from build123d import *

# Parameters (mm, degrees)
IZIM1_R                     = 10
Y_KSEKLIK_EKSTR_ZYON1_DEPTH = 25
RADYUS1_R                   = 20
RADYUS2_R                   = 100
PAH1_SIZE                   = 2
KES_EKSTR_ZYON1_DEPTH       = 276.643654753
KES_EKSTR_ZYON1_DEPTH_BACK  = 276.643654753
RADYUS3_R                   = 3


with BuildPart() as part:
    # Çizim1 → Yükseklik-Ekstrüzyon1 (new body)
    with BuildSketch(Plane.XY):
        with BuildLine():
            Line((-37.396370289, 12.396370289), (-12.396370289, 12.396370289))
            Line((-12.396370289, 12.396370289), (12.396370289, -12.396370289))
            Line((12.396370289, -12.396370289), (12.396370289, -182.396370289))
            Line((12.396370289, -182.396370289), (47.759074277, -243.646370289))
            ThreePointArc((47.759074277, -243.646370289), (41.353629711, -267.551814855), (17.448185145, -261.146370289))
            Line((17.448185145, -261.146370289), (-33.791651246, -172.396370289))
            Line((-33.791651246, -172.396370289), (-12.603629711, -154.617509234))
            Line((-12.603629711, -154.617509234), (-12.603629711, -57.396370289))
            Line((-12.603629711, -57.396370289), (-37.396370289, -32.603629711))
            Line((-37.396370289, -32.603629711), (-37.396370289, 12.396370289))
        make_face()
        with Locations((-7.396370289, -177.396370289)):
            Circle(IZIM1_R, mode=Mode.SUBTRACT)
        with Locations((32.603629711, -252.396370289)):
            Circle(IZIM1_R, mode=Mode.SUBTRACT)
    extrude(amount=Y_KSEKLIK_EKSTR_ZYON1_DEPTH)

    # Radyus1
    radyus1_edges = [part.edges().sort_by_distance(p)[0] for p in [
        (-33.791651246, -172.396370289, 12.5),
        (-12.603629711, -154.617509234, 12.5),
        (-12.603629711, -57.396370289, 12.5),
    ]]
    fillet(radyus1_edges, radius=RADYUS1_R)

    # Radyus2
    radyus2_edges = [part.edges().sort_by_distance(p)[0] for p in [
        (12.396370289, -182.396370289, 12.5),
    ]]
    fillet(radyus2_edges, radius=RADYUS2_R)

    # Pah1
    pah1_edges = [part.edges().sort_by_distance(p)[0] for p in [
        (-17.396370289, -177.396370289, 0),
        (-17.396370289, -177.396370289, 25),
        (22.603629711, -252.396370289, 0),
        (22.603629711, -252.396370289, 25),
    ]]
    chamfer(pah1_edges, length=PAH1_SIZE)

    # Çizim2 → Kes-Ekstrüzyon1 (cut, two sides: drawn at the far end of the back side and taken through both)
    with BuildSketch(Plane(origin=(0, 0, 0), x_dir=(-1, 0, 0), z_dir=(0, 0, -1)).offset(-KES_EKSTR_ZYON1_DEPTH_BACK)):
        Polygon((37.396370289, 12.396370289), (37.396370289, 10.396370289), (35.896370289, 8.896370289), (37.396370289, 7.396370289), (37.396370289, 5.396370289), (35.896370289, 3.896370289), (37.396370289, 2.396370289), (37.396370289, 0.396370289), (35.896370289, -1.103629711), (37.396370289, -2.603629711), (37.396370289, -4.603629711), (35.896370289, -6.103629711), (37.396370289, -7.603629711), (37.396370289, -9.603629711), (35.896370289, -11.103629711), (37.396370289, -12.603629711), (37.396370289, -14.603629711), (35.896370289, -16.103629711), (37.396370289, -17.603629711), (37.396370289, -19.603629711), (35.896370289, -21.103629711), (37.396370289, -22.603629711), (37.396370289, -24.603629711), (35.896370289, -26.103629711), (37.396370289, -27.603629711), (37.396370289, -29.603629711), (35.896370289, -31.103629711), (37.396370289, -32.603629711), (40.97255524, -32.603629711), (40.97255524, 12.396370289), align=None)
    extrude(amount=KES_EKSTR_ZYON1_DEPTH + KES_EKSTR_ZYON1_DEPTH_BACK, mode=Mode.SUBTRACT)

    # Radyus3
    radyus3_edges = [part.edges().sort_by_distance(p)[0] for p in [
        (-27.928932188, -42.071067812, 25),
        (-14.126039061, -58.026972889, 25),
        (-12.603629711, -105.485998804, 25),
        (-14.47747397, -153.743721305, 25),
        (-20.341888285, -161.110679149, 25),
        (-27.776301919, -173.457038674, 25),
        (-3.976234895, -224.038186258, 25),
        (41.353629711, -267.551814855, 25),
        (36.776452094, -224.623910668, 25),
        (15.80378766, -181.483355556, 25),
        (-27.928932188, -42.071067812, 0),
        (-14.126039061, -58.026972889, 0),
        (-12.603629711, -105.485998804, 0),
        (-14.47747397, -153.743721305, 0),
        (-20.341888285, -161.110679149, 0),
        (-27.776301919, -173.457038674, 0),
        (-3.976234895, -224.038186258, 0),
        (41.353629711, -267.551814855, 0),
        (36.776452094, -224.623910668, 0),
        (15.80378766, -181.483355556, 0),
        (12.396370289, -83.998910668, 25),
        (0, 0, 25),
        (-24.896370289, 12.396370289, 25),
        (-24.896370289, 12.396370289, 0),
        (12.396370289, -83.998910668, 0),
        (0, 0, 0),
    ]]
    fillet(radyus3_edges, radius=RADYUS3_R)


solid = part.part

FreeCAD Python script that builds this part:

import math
import FreeCAD as App
import Part
import Sketcher
Q = App.Units.Quantity


def edges_at(feature, points):
    """Names of the edges that pass closest to the given points."""
    edges = feature.Shape.Edges
    near = lambda p: min(range(len(edges)), key=lambda i: edges[i].distToShape(Part.Vertex(*p))[0])
    return sorted({f"Edge{near(p) + 1}" for p in points})


def add_polygon(sketch, points):
    """Adds a closed chain of lines whose ends are joined by coincident constraints."""
    first, n = sketch.GeometryCount, len(points)
    for a, b in zip(points, points[1:] + points[:1]):
        sketch.addGeometry(Part.LineSegment(App.Vector(*a, 0), App.Vector(*b, 0)), False)
    for i in range(n):
        sketch.addConstraint(Sketcher.Constraint("Coincident", first + i, 2, first + (i + 1) % n, 1))

doc = App.newDocument("Part")
body = doc.addObject("PartDesign::Body", "Body")

sketch1 = body.newObject("Sketcher::SketchObject", "Sketch")
sketch1.AttachmentSupport = (doc.getObject("XY_Plane"), [""])
sketch1.MapMode = "FlatFace"
sketch1.addGeometry([
    Part.LineSegment(App.Vector(-12, 12, 0), App.Vector(-37, 12, 0)),
    Part.LineSegment(App.Vector(-37, 12, 0), App.Vector(-37, -33, 0)),
    Part.LineSegment(App.Vector(-37, -33, 0), App.Vector(-13, -57, 0)),
    Part.LineSegment(App.Vector(-13, -57, 0), App.Vector(-13, -155, 0)),
    Part.LineSegment(App.Vector(-13, -155, 0), App.Vector(-34, -172, 0)),
    Part.LineSegment(App.Vector(-34, -172, 0), App.Vector(17, -261, 0)),
    Part.ArcOfCircle(Part.Circle(App.Vector(33, -252, 0), App.Vector(0, 0, 1), 18), math.radians(-150), math.radians(30)),
    Part.LineSegment(App.Vector(48, -244, 0), App.Vector(12, -182, 0)),
    Part.LineSegment(App.Vector(12, -182, 0), App.Vector(12, -12, 0)),
    Part.LineSegment(App.Vector(12, -12, 0), App.Vector(-12, 12, 0)),
    Part.Circle(App.Vector(33, -252, 0), App.Vector(0, 0, 1), 10),
    Part.Circle(App.Vector(-7, -177, 0), App.Vector(0, 0, 1), 10),
], False)
sketch1.addConstraint([
    Sketcher.Constraint("Coincident", 0, 2, 1, 1),
    Sketcher.Constraint("Coincident", 1, 2, 2, 1),
    Sketcher.Constraint("Coincident", 2, 2, 3, 1),
    Sketcher.Constraint("Coincident", 3, 2, 4, 1),
    Sketcher.Constraint("Coincident", 4, 2, 5, 1),
    Sketcher.Constraint("Tangent", 5, 2, 6, 1),
    Sketcher.Constraint("Tangent", 6, 2, 7, 1),
    Sketcher.Constraint("Coincident", 7, 2, 8, 1),
    Sketcher.Constraint("Coincident", 8, 2, 9, 1),
    Sketcher.Constraint("Coincident", 9, 2, 0, 1),
    Sketcher.Constraint("Horizontal", 0),
    Sketcher.Constraint("Vertical", 1),
    Sketcher.Constraint("Vertical", 3),
    Sketcher.Constraint("Vertical", 8),
    Sketcher.Constraint("Coincident", 10, 3, 6, 3),
    Sketcher.Constraint("Equal", 10, 11),
    Sketcher.Constraint("Symmetric", 8, 2, 9, 2, -1, 1),
    Sketcher.Constraint("Parallel", 5, 7),
    Sketcher.Constraint("Parallel", 2, 9),
    Sketcher.Constraint("Equal", 2, 9),
    Sketcher.Constraint("Diameter", 10, 20.0),
    Sketcher.Constraint("Radius", 6, 17.5),
    Sketcher.Constraint("DistanceX", 0, 2, 0, 1, 25.0),
    Sketcher.Constraint("DistanceY", 1, 2, 1, 1, 45.0),
    Sketcher.Constraint("DistanceY", 8, 1, 8, 2, 170.0),
    Sketcher.Constraint("Angle", 2, Q("-45 deg")),
    Sketcher.Constraint("Angle", 4, Q("-140 deg")),
    Sketcher.Constraint("Angle", 5, Q("-60 deg")),
    Sketcher.Constraint("DistanceX", 11, 3, 6, 3, 40.0),
    Sketcher.Constraint("DistanceY", 6, 3, 11, 3, 75.0),
    Sketcher.Constraint("DistanceX", 0, 2, 11, 3, 30.0),
    Sketcher.Constraint("DistanceY", 11, 3, 2, 2, 120.0),
    Sketcher.Constraint("DistanceY", 11, 3, 4, 2, 5.0),
])
pad1 = body.newObject("PartDesign::Pad", "Pad")
pad1.Profile = sketch1
pad1.Length = 25
doc.recompute()

fillet = body.newObject("PartDesign::Fillet", "Fillet")
fillet.Base = (pad1, edges_at(pad1, [(-33.792, -172.396, 12.5), (-12.604, -154.618, 12.5), (-12.604, -57.396, 12.5)]))
fillet.Radius = 20
doc.recompute()

fillet2 = body.newObject("PartDesign::Fillet", "Fillet001")
fillet2.Base = (fillet, edges_at(fillet, [(12.396, -182.396, 12.5)]))
fillet2.Radius = 100
doc.recompute()

chamfer = body.newObject("PartDesign::Chamfer", "Chamfer")
chamfer.Base = (fillet2, edges_at(fillet2, [
    (-17.396, -177.396, 0),
    (-17.396, -177.396, 25),
    (22.604, -252.396, 0),
    (22.604, -252.396, 25),
]))
chamfer.Size = 2

sketch2 = body.newObject("Sketcher::SketchObject", "Sketch001")
sketch2.AttachmentSupport = (doc.getObject("XY_Plane"), [""])
sketch2.MapMode = "FlatFace"
add_polygon(sketch2, [(-37.4, 12.4), (-37.4, 10.4), (-35.9, 8.9), (-37.4, 7.4), (-37.4, 5.4), (-35.9, 3.9), (-37.4, 2.4), (-37.4, 0.4), (-35.9, -1.1), (-37.4, -2.6), (-37.4, -4.6), (-35.9, -6.1), (-37.4, -7.6), (-37.4, -9.6), (-35.9, -11.1), (-37.4, -12.6), (-37.4, -14.6), (-35.9, -16.1), (-37.4, -17.6), (-37.4, -19.6), (-35.9, -21.1), (-37.4, -22.6), (-37.4, -24.6), (-35.9, -26.1), (-37.4, -27.6), (-37.4, -29.6), (-35.9, -31.1), (-37.4, -32.6), (-41, -32.6), (-41, 12.4)])
sketch2.addConstraint([
    Sketcher.Constraint("Vertical", 0),
    Sketcher.Constraint("Vertical", 3),
    Sketcher.Constraint("Vertical", 6),
    Sketcher.Constraint("Vertical", 9),
    Sketcher.Constraint("Vertical", 12),
    Sketcher.Constraint("Vertical", 15),
    Sketcher.Constraint("Vertical", 18),
    Sketcher.Constraint("Vertical", 21),
    Sketcher.Constraint("Vertical", 24),
    Sketcher.Constraint("Horizontal", 27),
    Sketcher.Constraint("Vertical", 28),
    Sketcher.Constraint("Horizontal", 29),
    Sketcher.Constraint("Perpendicular", 1, 2),
    Sketcher.Constraint("Perpendicular", 2, 4),
    Sketcher.Constraint("Perpendicular", 4, 5),
    Sketcher.Constraint("Perpendicular", 5, 7),
    Sketcher.Constraint("Perpendicular", 7, 8),
    Sketcher.Constraint("Perpendicular", 8, 10),
    Sketcher.Constraint("Perpendicular", 10, 11),
    Sketcher.Constraint("Perpendicular", 11, 13),
    Sketcher.Constraint("Perpendicular", 13, 14),
    Sketcher.Constraint("Perpendicular", 14, 16),
    Sketcher.Constraint("Perpendicular", 16, 17),
    Sketcher.Constraint("Perpendicular", 17, 19),
    Sketcher.Constraint("Perpendicular", 19, 20),
    Sketcher.Constraint("Perpendicular", 20, 22),
    Sketcher.Constraint("Perpendicular", 22, 23),
    Sketcher.Constraint("Perpendicular", 23, 25),
    Sketcher.Constraint("Perpendicular", 25, 26),
    Sketcher.Constraint("Vertical", 0, 2, 2, 2),
    Sketcher.Constraint("Vertical", 1, 2, 4, 2),
    Sketcher.Constraint("Vertical", 3, 2, 5, 2),
    Sketcher.Constraint("Vertical", 4, 2, 7, 2),
    Sketcher.Constraint("Vertical", 6, 2, 8, 2),
    Sketcher.Constraint("Vertical", 7, 2, 10, 2),
    Sketcher.Constraint("Vertical", 9, 2, 11, 2),
    Sketcher.Constraint("Vertical", 10, 2, 13, 2),
    Sketcher.Constraint("Vertical", 12, 2, 14, 2),
    Sketcher.Constraint("Vertical", 13, 2, 16, 2),
    Sketcher.Constraint("Vertical", 15, 2, 17, 2),
    Sketcher.Constraint("Vertical", 16, 2, 19, 2),
    Sketcher.Constraint("Vertical", 18, 2, 20, 2),
    Sketcher.Constraint("Vertical", 19, 2, 22, 2),
    Sketcher.Constraint("Vertical", 21, 2, 23, 2),
    Sketcher.Constraint("Vertical", 22, 2, 25, 2),
    Sketcher.Constraint("Vertical", 24, 2, 26, 2),
    Sketcher.Constraint("Equal", 0, 3),
    Sketcher.Constraint("Equal", 3, 6),
    Sketcher.Constraint("Equal", 6, 9),
    Sketcher.Constraint("Equal", 9, 12),
    Sketcher.Constraint("Equal", 12, 15),
    Sketcher.Constraint("Equal", 15, 18),
    Sketcher.Constraint("Equal", 18, 21),
    Sketcher.Constraint("Equal", 21, 24),
    Sketcher.Constraint("Equal", 1, 2),
    Sketcher.Constraint("DistanceY", 0, 2, 0, 1, 2.0),
    Sketcher.Constraint("DistanceY", 28, 1, 28, 2, 45.0),
    Sketcher.Constraint("DistanceX", 27, 2, 27, 1, 3.576185),
    Sketcher.Constraint("DistanceX", 0, 2, -1, 1, 37.39637),
    Sketcher.Constraint("DistanceY", -1, 1, 0, 2, 10.39637),
])
pocket1 = body.newObject("PartDesign::Pocket", "Pocket")
pocket1.Profile = sketch2
pocket1.Type = "ThroughAll"
pocket1.Midplane = True
doc.recompute()

fillet3 = body.newObject("PartDesign::Fillet", "Fillet002")
fillet3.Base = (pocket1, edges_at(pocket1, [
    (-27.929, -42.071, 25),
    (-14.126, -58.027, 25),
    (-12.604, -105.486, 25),
    (-14.477, -153.744, 25),
    (-20.342, -161.111, 25),
    (-27.776, -173.457, 25),
    (-3.976, -224.038, 25),
    (41.354, -267.552, 25),
    (36.776, -224.624, 25),
    (15.804, -181.483, 25),
    (-27.929, -42.071, 0),
    (-14.126, -58.027, 0),
    (-12.604, -105.486, 0),
    (-14.477, -153.744, 0),
    (-20.342, -161.111, 0),
    (-27.776, -173.457, 0),
    (-3.976, -224.038, 0),
    (41.354, -267.552, 0),
    (36.776, -224.624, 0),
    (15.804, -181.483, 0),
    (12.396, -83.999, 25),
    (0, 0, 25),
    (-24.896, 12.396, 25),
    (-24.896, 12.396, 0),
    (12.396, -83.999, 0),
    (0, 0, 0),
]))
fillet3.Radius = 3

doc.recompute()
